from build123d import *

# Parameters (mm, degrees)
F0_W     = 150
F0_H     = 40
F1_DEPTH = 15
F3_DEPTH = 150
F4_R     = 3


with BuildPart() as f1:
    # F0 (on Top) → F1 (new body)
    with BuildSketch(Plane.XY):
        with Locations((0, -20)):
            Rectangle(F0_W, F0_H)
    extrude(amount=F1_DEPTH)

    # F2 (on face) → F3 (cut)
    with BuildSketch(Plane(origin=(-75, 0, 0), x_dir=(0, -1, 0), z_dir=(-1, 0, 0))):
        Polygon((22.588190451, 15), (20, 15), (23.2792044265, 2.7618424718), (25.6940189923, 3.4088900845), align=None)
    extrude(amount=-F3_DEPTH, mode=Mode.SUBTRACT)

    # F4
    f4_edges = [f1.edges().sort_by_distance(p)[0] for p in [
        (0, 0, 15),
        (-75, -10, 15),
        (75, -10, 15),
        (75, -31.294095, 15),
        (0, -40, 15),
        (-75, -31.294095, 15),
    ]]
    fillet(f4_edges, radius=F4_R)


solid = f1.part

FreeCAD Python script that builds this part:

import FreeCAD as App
import Part
import Sketcher

V = App.Vector
Q = App.Units.Quantity


def edges_at(feature, points):
    """Names of the edges that pass closest to the given points."""
    edges = feature.Shape.Edges
    near = lambda p: min(range(len(edges)), key=lambda i: edges[i].distToShape(Part.Vertex(*p))[0])
    return sorted({f"Edge{near(p) + 1}" for p in points})

doc = App.newDocument("Part")
body = doc.addObject("PartDesign::Body", "Body")

# Sketch on XY plane
sketch1 = doc.addObject("Sketcher::SketchObject", "Sketch")
body.addObject(sketch1)
sketch1.AttachmentSupport = (doc.XY_Plane, [""])
sketch1.MapMode = "FlatFace"
sketch1.addGeometry([
    Part.LineSegment(V(-75, 0, 0), V(-75, -40, 0)),
    Part.LineSegment(V(-75, -40, 0), V(75, -40, 0)),
    Part.LineSegment(V(75, -40, 0), V(75, 0, 0)),
    Part.LineSegment(V(75, 0, 0), V(-75, 0, 0)),
], False)
sketch1.addConstraint([
    Sketcher.Constraint("Coincident", 0, 2, 1, 1),
    Sketcher.Constraint("Coincident", 1, 2, 2, 1),
    Sketcher.Constraint("Coincident", 2, 2, 3, 1),
    Sketcher.Constraint("Coincident", 3, 2, 0, 1),
    Sketcher.Constraint("Vertical", 0),
    Sketcher.Constraint("Horizontal", 1),
    Sketcher.Constraint("Vertical", 2),
    Sketcher.Constraint("Horizontal", 3),
    Sketcher.Constraint("Symmetric", 2, 2, 3, 2, -1, 1),
    Sketcher.Constraint("DistanceX", 1, 1, 1, 2, Q("150 mm")),
    Sketcher.Constraint("DistanceY", 0, 2, 0, 1, Q("40 mm")),
])
pad1 = doc.addObject("PartDesign::Pad", "Pad")
body.addObject(pad1)
pad1.Profile = sketch1
pad1.Length = 15

# Sketch on YZ plane
sketch2 = doc.addObject("Sketcher::SketchObject", "Sketch001")
body.addObject(sketch2)
sketch2.AttachmentSupport = (doc.YZ_Plane, [""])
sketch2.MapMode = "FlatFace"
sketch2.AttachmentOffset = App.Placement(V(0, 0, -75), App.Rotation())
sketch2.addGeometry([
    Part.LineSegment(V(-22.58819, 15, 0), V(-20, 15, 0)),
    Part.LineSegment(V(-20, 15, 0), V(-23.279204, 2.761842, 0)),
    Part.LineSegment(V(-23.279204, 2.761842, 0), V(-25.694019, 3.40889, 0)),
    Part.LineSegment(V(-25.694019, 3.40889, 0), V(-22.58819, 15, 0)),
], False)
sketch2.addConstraint([
    Sketcher.Constraint("Coincident", 0, 2, 1, 1),
    Sketcher.Constraint("Coincident", 1, 2, 2, 1),
    Sketcher.Constraint("Coincident", 2, 2, 3, 1),
    Sketcher.Constraint("Coincident", 3, 2, 0, 1),
    Sketcher.Constraint("Horizontal", 0),
    Sketcher.Constraint("Perpendicular", 1, 2),
    Sketcher.Constraint("Perpendicular", 2, 3),
    Sketcher.Constraint("Angle", 1, Q("-105 deg")),
    Sketcher.Constraint("Distance", 3, Q("12 mm")),
    Sketcher.Constraint("DistanceX", 0, 2, -1, 1, Q("20 mm")),
    Sketcher.Constraint("DistanceY", -1, 1, 0, 2, Q("15 mm")),
    Sketcher.Constraint("Distance", 2, Q("2.5 mm")),
])
pocket1 = doc.addObject("PartDesign::Pocket", "Pocket")
body.addObject(pocket1)
pocket1.Profile = sketch2
pocket1.Length = 150
pocket1.Reversed = True
doc.recompute()

fillet = doc.addObject("PartDesign::Fillet", "Fillet")
body.addObject(fillet)
fillet.Base = (pocket1, edges_at(pocket1, [
    (0, 0, 15),
    (-75, -10, 15),
    (75, -10, 15),
    (75, -31.294, 15),
    (0, -40, 15),
    (-75, -31.294, 15),
]))
fillet.Radius = 3

doc.recompute()
